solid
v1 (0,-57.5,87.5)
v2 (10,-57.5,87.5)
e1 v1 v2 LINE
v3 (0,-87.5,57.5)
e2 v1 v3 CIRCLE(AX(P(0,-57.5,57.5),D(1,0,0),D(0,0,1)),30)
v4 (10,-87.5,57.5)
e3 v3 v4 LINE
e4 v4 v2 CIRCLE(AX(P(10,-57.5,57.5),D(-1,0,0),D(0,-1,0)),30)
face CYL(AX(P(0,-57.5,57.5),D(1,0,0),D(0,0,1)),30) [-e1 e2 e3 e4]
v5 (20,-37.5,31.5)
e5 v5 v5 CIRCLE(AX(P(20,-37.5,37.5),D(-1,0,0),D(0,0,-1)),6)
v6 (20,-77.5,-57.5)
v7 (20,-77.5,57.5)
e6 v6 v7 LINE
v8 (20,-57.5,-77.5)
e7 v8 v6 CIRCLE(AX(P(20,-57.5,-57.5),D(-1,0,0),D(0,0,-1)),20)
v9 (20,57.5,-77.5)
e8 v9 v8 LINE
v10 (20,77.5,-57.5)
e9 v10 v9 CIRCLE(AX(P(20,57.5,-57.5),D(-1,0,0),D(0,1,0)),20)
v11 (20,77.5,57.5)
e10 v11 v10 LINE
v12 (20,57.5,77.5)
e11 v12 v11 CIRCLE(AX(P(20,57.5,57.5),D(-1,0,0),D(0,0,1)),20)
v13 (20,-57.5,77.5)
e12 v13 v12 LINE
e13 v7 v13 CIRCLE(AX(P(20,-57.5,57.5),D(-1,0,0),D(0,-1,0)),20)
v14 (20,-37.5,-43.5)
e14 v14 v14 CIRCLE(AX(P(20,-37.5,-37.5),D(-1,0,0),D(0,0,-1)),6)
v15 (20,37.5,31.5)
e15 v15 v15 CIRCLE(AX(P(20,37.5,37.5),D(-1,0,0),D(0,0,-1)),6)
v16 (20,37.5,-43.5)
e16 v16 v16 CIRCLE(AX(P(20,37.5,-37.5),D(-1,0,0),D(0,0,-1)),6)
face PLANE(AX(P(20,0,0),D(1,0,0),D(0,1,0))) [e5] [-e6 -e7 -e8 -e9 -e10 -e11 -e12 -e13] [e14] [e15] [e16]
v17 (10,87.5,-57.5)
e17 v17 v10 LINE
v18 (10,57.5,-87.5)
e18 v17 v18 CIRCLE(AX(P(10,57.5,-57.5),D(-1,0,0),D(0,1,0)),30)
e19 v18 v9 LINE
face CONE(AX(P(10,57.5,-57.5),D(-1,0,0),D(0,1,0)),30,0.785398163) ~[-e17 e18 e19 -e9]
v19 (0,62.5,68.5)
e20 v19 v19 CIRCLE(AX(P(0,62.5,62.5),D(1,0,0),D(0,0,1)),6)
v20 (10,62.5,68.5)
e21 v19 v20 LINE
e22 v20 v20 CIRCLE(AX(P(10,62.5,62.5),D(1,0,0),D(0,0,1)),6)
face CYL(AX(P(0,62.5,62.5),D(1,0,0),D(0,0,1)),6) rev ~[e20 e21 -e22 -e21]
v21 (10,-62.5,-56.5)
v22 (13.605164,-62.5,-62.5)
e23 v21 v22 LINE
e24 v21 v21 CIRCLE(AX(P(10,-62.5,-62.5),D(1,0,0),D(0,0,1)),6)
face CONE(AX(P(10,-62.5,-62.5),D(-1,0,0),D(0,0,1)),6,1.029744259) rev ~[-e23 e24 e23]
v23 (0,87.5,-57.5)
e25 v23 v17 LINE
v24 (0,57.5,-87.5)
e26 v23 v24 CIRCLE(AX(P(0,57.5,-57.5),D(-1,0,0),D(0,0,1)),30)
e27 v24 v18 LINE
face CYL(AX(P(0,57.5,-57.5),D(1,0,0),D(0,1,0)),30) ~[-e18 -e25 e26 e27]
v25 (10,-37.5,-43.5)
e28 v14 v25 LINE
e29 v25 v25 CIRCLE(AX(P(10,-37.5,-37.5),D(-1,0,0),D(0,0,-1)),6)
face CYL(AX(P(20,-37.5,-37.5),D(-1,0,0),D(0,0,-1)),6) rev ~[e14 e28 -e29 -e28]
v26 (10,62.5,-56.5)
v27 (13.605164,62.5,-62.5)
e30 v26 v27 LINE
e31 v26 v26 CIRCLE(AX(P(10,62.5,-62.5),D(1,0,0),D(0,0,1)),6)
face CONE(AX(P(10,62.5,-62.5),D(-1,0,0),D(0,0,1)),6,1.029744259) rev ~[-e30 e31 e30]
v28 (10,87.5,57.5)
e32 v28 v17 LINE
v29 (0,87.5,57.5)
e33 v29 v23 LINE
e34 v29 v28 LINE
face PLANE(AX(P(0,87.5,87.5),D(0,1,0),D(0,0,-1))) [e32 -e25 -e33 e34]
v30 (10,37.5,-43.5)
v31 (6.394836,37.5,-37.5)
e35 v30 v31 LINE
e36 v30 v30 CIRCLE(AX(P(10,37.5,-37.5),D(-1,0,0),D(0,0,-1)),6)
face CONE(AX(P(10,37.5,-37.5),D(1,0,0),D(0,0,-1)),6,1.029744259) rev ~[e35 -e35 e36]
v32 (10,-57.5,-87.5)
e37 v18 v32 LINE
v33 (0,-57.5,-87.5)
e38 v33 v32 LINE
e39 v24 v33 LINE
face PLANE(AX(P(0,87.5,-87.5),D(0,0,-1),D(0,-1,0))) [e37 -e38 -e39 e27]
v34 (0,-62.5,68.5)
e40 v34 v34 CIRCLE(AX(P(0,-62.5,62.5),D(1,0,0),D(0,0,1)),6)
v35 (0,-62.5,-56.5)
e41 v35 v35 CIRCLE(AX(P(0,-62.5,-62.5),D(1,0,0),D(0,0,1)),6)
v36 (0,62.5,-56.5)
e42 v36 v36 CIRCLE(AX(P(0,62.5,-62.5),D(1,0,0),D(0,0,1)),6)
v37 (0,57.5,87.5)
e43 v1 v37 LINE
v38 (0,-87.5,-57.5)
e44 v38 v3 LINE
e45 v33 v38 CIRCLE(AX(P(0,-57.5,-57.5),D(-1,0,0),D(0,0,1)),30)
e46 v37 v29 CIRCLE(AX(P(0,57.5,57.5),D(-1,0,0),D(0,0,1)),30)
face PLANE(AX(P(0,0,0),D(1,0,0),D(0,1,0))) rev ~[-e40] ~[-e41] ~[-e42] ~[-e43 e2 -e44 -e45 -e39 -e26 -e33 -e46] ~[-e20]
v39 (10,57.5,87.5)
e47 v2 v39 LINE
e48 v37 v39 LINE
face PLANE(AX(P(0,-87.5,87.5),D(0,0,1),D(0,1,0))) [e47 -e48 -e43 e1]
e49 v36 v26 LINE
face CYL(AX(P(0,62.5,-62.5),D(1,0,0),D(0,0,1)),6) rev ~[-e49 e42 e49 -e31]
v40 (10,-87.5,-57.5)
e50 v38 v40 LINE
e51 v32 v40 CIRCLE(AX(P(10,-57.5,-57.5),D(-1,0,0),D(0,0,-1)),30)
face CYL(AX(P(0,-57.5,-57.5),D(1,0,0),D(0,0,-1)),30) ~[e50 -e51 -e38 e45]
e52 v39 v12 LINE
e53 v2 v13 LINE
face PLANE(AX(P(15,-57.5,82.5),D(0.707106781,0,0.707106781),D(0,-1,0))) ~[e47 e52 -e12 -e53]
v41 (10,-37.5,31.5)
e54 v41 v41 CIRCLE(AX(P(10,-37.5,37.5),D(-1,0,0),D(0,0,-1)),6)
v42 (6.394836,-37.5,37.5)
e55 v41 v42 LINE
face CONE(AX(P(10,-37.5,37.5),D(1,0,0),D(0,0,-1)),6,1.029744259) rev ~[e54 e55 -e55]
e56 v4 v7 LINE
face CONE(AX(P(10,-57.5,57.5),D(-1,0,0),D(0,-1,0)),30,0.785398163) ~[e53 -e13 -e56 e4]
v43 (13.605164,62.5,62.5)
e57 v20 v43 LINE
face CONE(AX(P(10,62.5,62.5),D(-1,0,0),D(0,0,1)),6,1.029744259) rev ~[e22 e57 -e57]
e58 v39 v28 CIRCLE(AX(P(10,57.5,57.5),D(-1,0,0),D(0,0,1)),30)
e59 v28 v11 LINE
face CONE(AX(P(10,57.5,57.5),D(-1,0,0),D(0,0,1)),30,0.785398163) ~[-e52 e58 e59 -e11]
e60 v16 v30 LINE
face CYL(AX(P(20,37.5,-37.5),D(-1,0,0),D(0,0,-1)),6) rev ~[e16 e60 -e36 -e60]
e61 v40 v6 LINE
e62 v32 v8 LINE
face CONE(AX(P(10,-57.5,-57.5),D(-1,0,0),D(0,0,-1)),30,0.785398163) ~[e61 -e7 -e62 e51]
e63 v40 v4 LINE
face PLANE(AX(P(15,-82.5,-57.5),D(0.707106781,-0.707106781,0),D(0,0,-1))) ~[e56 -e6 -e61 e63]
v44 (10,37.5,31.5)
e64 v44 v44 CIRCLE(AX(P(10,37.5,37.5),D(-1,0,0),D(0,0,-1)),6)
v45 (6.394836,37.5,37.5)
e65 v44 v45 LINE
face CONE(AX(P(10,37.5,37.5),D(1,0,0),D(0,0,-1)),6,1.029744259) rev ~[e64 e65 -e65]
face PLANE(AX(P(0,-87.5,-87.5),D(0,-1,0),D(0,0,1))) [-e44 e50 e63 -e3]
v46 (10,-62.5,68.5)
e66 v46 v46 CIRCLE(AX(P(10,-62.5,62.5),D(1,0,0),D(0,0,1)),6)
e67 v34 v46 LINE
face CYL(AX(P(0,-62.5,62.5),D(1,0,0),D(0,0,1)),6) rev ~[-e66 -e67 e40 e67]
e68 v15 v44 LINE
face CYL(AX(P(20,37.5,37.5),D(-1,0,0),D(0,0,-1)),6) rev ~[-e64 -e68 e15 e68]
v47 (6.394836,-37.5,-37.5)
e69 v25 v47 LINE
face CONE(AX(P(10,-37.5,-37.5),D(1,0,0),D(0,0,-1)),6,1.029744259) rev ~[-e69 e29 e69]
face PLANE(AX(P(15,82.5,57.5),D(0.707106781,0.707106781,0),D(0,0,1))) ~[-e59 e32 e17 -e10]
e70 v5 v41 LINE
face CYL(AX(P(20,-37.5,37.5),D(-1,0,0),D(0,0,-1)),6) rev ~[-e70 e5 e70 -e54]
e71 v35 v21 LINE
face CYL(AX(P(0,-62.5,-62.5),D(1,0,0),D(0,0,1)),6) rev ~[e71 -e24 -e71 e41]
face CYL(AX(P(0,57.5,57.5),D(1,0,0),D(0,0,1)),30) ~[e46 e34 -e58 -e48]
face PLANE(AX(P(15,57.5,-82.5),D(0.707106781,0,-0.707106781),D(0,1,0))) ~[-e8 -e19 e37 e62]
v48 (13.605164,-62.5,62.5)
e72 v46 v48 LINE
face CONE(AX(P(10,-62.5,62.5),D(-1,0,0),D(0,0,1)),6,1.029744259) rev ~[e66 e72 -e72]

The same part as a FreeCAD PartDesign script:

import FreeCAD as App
import Part
import Sketcher


def edges_at(feature, points):
    """Names of the edges that pass closest to the given points."""
    edges = feature.Shape.Edges
    near = lambda p: min(range(len(edges)), key=lambda i: edges[i].distToShape(Part.Vertex(*p))[0])
    return sorted({f"Edge{near(p) + 1}" for p in points})

doc = App.newDocument("Part")
body = doc.addObject("PartDesign::Body", "Body")

sketch1 = body.newObject("Sketcher::SketchObject", "Sketch")
sketch1.AttachmentSupport = (doc.getObject("YZ_Plane"), [""])
sketch1.MapMode = "FlatFace"
sketch1.addGeometry(Part.LineSegment(App.Vector(88, 88, 0), App.Vector(-88, 88, 0)), False)
sketch1.addGeometry(Part.LineSegment(App.Vector(-88, 88, 0), App.Vector(-88, -88, 0)), False)
sketch1.addGeometry(Part.LineSegment(App.Vector(-88, -88, 0), App.Vector(88, -88, 0)), False)
sketch1.addGeometry(Part.LineSegment(App.Vector(88, -88, 0), App.Vector(88, 88, 0)), False)
sketch1.addConstraint(Sketcher.Constraint("Coincident", 0, 2, 1, 1))
sketch1.addConstraint(Sketcher.Constraint("Coincident", 1, 2, 2, 1))
sketch1.addConstraint(Sketcher.Constraint("Coincident", 2, 2, 3, 1))
sketch1.addConstraint(Sketcher.Constraint("Coincident", 3, 2, 0, 1))
sketch1.addConstraint(Sketcher.Constraint("Horizontal", 0))
sketch1.addConstraint(Sketcher.Constraint("Vertical", 1))
sketch1.addConstraint(Sketcher.Constraint("Horizontal", 2))
sketch1.addConstraint(Sketcher.Constraint("Vertical", 3))
sketch1.addConstraint(Sketcher.Constraint("Symmetric", 0, 2, 2, 2, -1, 1))
sketch1.addConstraint(Sketcher.Constraint("Equal", 2, 1))
sketch1.addConstraint(Sketcher.Constraint("DistanceX", 0, 2, 0, 1, 175.0))
pad1 = body.newObject("PartDesign::Pad", "Pad")
pad1.Profile = sketch1
pad1.Length = 20
doc.recompute()

fillet = body.newObject("PartDesign::Fillet", "Fillet")
fillet.Base = (pad1, edges_at(pad1, [
    (10, 87.5, 87.5),
    (10, -87.5, 87.5),
    (10, 87.5, -87.5),
    (10, -87.5, -87.5),
]))
fillet.Radius = 30
doc.recompute()

chamfer = body.newObject("PartDesign::Chamfer", "Chamfer")
chamfer.Base = (fillet, edges_at(fillet, [
    (20, 0, 87.5),
    (20, -78.713, 78.713),
    (20, -87.5, 0),
    (20, -78.713, -78.713),
    (20, 0, -87.5),
    (20, 78.713, -78.713),
    (20, 87.5, 0),
    (20, 78.713, 78.713),
]))
chamfer.Size = 10

sketch2 = body.newObject("Sketcher::SketchObject", "Sketch001")
sketch2.AttachmentSupport = (doc.getObject("YZ_Plane"), [""])
sketch2.MapMode = "FlatFace"
sketch2.AttachmentOffset = App.Placement(App.Vector(0, 0, 20), App.Rotation())
sketch2.addGeometry(Part.Circle(App.Vector(38, 38, 0), App.Vector(0, 0, 1), 6), False)
sketch2.addGeometry(Part.Circle(App.Vector(38, -38, 0), App.Vector(0, 0, 1), 6), False)
sketch2.addGeometry(Part.Circle(App.Vector(-38, 38, 0), App.Vector(0, 0, 1), 6), False)
sketch2.addGeometry(Part.Circle(App.Vector(-38, -38, 0), App.Vector(0, 0, 1), 6), False)
sketch2.addConstraint(Sketcher.Constraint("Equal", 0, 1))
sketch2.addConstraint(Sketcher.Constraint("Equal", 1, 2))
sketch2.addConstraint(Sketcher.Constraint("Equal", 2, 3))
sketch2.addConstraint(Sketcher.Constraint("Symmetric", 1, 3, 2, 3, -1, 1))
sketch2.addConstraint(Sketcher.Constraint("Symmetric", 0, 3, 3, 3, -1, 1))
sketch2.addConstraint(Sketcher.Constraint("Symmetric", 0, 3, 2, 3, -2))
sketch2.addConstraint(Sketcher.Constraint("Diameter", 0, 12.0))
sketch2.addConstraint(Sketcher.Constraint("DistanceY", 1, 3, 0, 3, 75.0))
sketch2.addConstraint(Sketcher.Constraint("DistanceX", 2, 3, 0, 3, 75.0))
doc.recompute()
hole = body.newObject("PartDesign::Hole", "Hole")
hole.Profile = sketch2
hole.ThreadType = "None"
hole.Diameter = 12
hole.DepthType = "Dimension"
hole.Depth = 10
hole.DrillPoint = "Angled"
hole.DrillPointAngle = 118

sketch3 = body.newObject("Sketcher::SketchObject", "Sketch002")
sketch3.AttachmentSupport = (doc.getObject("YZ_Plane"), [""])
sketch3.MapMode = "FlatFace"
sketch3.addGeometry(Part.Circle(App.Vector(-62, 62, 0), App.Vector(0, 0, 1), 6), False)
sketch3.addGeometry(Part.Circle(App.Vector(-62, -62, 0), App.Vector(0, 0, 1), 6), False)
sketch3.addGeometry(Part.Circle(App.Vector(62, -62, 0), App.Vector(0, 0, 1), 6), False)
sketch3.addGeometry(Part.Circle(App.Vector(62, 62, 0), App.Vector(0, 0, 1), 6), False)
sketch3.addConstraint(Sketcher.Constraint("Equal", 0, 1))
sketch3.addConstraint(Sketcher.Constraint("Equal", 1, 2))
sketch3.addConstraint(Sketcher.Constraint("Equal", 2, 3))
sketch3.addConstraint(Sketcher.Constraint("Symmetric", 0, 3, 2, 3, -1, 1))
sketch3.addConstraint(Sketcher.Constraint("Symmetric", 1, 3, 3, 3, -1, 1))
sketch3.addConstraint(Sketcher.Constraint("Symmetric", 1, 3, 2, 3, -2))
sketch3.addConstraint(Sketcher.Constraint("Diameter", 0, 12.0))
sketch3.addConstraint(Sketcher.Constraint("DistanceY", 1, 3, 0, 3, 125.0))
sketch3.addConstraint(Sketcher.Constraint("DistanceX", 1, 3, 2, 3, 125.0))
doc.recompute()
hole2 = body.newObject("PartDesign::Hole", "Hole001")
hole2.Profile = sketch3
hole2.ThreadType = "None"
hole2.Diameter = 12
hole2.DepthType = "Dimension"
hole2.Depth = 10
hole2.DrillPoint = "Angled"
hole2.DrillPointAngle = 118
hole2.Reversed = True

doc.recompute()
